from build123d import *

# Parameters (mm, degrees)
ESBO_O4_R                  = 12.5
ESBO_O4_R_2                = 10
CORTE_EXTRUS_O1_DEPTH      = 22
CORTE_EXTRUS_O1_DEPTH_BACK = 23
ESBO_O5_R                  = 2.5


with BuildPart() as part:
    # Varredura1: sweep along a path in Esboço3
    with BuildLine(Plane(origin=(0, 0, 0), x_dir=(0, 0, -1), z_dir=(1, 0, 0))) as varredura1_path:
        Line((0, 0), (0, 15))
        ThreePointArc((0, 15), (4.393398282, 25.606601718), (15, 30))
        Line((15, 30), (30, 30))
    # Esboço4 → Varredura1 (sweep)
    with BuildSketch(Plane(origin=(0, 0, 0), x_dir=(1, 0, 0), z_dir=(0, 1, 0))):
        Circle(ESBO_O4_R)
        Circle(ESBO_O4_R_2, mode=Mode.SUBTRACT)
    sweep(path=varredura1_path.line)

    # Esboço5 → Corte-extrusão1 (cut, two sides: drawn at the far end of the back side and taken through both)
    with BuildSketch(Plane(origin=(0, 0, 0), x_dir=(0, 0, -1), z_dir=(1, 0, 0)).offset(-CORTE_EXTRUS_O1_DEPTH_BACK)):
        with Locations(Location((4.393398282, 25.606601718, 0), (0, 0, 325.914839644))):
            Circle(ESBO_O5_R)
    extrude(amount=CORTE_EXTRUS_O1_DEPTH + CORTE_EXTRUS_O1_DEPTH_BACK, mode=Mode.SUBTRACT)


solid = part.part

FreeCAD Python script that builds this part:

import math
import FreeCAD as App
import Part
import Sketcher
Q = App.Units.Quantity

doc = App.newDocument("Part")
params = doc.addObject("Spreadsheet::Sheet", "Params")
for row, (alias, value) in enumerate([
    ("sketch1_diameter", "25 mm"),
    ("sketch1_diameter2", "20 mm"),
    ("sketch2_radius", "15 mm"),
    ("sketch2_width", "15 mm"),
    ("sketch3_diameter", "5 mm"),
], start=1):
    params.set(f"A{row}", alias)
    params.set(f"B{row}", "=" + value)
    params.setAlias(f"B{row}", alias)

body = doc.addObject("PartDesign::Body", "Body")

sketch1 = doc.addObject("Sketcher::SketchObject", "Sketch")
body.addObject(sketch1)
sketch1.AttachmentSupport = (doc.XZ_Plane, [""])
sketch1.MapMode = "FlatFace"
sketch1.addGeometry(Part.Circle(App.Vector(0, 0, 0), App.Vector(0, 0, 1), 12.5), False)
sketch1.addGeometry(Part.Circle(App.Vector(0, 0, 0), App.Vector(0, 0, 1), 10), False)
sketch1.addConstraint(Sketcher.Constraint("Coincident", 0, 3, -1, 1))
sketch1.addConstraint(Sketcher.Constraint("Coincident", 1, 3, -1, 1))
sketch1.addConstraint(Sketcher.Constraint("Diameter", 0, Q("25 mm")))
sketch1.addConstraint(Sketcher.Constraint("Diameter", 1, Q("20 mm")))
sketch1.setExpression("Constraints[2]", "Params.sketch1_diameter")
sketch1.setExpression("Constraints[3]", "Params.sketch1_diameter2")

sketch2 = doc.addObject("Sketcher::SketchObject", "Sketch001")
body.addObject(sketch2)
sketch2.AttachmentSupport = (doc.YZ_Plane, [""])
sketch2.MapMode = "FlatFace"
sketch2.addGeometry(Part.LineSegment(App.Vector(0, 0, 0), App.Vector(15, 0, 0)), False)
sketch2.addGeometry(Part.ArcOfCircle(Part.Circle(App.Vector(15, -15, 0), App.Vector(0, 0, 1), 15), math.radians(0), math.radians(90)), False)
sketch2.addGeometry(Part.LineSegment(App.Vector(30, -15, 0), App.Vector(30, -30, 0)), False)
sketch2.addConstraint(Sketcher.Constraint("Tangent", 0, 2, 1, 2))
sketch2.addConstraint(Sketcher.Constraint("Tangent", 1, 1, 2, 1))
sketch2.addConstraint(Sketcher.Constraint("Horizontal", 0))
sketch2.addConstraint(Sketcher.Constraint("Vertical", 2))
sketch2.addConstraint(Sketcher.Constraint("Coincident", 0, 1, -1, 1))
sketch2.addConstraint(Sketcher.Constraint("Equal", 0, 2))
sketch2.addConstraint(Sketcher.Constraint("Radius", 1, Q("15 mm")))
sketch2.addConstraint(Sketcher.Constraint("DistanceX", 0, 1, 0, 2, Q("15 mm")))
sketch2.setExpression("Constraints[6]", "Params.sketch2_radius")
sketch2.setExpression("Constraints[7]", "Params.sketch2_width")
doc.recompute()

additivepipe = doc.addObject("PartDesign::AdditivePipe", "AdditivePipe")
body.addObject(additivepipe)
additivepipe.Profile = sketch1
additivepipe.Spine = (sketch2, ["Edge1", "Edge2", "Edge3"])

sketch3 = doc.addObject("Sketcher::SketchObject", "Sketch002")
body.addObject(sketch3)
sketch3.AttachmentSupport = (doc.YZ_Plane, [""])
sketch3.MapMode = "FlatFace"
sketch3.addGeometry(Part.Circle(App.Vector(25.606602, -4.393398, 0), App.Vector(0, 0, 1), 2.5), False)
sketch3.addConstraint(Sketcher.Constraint("Diameter", 0, Q("5 mm")))
sketch3.addConstraint(Sketcher.Constraint("DistanceX", -1, 1, 0, 3, Q("25.606602 mm")))
sketch3.addConstraint(Sketcher.Constraint("DistanceY", 0, 3, -1, 1, Q("4.393398 mm")))
sketch3.setExpression("Constraints[0]", "Params.sketch3_diameter")
pocket1 = doc.addObject("PartDesign::Pocket", "Pocket")
body.addObject(pocket1)
pocket1.Profile = sketch3
pocket1.Type = "ThroughAll"
pocket1.Midplane = True

doc.recompute()
